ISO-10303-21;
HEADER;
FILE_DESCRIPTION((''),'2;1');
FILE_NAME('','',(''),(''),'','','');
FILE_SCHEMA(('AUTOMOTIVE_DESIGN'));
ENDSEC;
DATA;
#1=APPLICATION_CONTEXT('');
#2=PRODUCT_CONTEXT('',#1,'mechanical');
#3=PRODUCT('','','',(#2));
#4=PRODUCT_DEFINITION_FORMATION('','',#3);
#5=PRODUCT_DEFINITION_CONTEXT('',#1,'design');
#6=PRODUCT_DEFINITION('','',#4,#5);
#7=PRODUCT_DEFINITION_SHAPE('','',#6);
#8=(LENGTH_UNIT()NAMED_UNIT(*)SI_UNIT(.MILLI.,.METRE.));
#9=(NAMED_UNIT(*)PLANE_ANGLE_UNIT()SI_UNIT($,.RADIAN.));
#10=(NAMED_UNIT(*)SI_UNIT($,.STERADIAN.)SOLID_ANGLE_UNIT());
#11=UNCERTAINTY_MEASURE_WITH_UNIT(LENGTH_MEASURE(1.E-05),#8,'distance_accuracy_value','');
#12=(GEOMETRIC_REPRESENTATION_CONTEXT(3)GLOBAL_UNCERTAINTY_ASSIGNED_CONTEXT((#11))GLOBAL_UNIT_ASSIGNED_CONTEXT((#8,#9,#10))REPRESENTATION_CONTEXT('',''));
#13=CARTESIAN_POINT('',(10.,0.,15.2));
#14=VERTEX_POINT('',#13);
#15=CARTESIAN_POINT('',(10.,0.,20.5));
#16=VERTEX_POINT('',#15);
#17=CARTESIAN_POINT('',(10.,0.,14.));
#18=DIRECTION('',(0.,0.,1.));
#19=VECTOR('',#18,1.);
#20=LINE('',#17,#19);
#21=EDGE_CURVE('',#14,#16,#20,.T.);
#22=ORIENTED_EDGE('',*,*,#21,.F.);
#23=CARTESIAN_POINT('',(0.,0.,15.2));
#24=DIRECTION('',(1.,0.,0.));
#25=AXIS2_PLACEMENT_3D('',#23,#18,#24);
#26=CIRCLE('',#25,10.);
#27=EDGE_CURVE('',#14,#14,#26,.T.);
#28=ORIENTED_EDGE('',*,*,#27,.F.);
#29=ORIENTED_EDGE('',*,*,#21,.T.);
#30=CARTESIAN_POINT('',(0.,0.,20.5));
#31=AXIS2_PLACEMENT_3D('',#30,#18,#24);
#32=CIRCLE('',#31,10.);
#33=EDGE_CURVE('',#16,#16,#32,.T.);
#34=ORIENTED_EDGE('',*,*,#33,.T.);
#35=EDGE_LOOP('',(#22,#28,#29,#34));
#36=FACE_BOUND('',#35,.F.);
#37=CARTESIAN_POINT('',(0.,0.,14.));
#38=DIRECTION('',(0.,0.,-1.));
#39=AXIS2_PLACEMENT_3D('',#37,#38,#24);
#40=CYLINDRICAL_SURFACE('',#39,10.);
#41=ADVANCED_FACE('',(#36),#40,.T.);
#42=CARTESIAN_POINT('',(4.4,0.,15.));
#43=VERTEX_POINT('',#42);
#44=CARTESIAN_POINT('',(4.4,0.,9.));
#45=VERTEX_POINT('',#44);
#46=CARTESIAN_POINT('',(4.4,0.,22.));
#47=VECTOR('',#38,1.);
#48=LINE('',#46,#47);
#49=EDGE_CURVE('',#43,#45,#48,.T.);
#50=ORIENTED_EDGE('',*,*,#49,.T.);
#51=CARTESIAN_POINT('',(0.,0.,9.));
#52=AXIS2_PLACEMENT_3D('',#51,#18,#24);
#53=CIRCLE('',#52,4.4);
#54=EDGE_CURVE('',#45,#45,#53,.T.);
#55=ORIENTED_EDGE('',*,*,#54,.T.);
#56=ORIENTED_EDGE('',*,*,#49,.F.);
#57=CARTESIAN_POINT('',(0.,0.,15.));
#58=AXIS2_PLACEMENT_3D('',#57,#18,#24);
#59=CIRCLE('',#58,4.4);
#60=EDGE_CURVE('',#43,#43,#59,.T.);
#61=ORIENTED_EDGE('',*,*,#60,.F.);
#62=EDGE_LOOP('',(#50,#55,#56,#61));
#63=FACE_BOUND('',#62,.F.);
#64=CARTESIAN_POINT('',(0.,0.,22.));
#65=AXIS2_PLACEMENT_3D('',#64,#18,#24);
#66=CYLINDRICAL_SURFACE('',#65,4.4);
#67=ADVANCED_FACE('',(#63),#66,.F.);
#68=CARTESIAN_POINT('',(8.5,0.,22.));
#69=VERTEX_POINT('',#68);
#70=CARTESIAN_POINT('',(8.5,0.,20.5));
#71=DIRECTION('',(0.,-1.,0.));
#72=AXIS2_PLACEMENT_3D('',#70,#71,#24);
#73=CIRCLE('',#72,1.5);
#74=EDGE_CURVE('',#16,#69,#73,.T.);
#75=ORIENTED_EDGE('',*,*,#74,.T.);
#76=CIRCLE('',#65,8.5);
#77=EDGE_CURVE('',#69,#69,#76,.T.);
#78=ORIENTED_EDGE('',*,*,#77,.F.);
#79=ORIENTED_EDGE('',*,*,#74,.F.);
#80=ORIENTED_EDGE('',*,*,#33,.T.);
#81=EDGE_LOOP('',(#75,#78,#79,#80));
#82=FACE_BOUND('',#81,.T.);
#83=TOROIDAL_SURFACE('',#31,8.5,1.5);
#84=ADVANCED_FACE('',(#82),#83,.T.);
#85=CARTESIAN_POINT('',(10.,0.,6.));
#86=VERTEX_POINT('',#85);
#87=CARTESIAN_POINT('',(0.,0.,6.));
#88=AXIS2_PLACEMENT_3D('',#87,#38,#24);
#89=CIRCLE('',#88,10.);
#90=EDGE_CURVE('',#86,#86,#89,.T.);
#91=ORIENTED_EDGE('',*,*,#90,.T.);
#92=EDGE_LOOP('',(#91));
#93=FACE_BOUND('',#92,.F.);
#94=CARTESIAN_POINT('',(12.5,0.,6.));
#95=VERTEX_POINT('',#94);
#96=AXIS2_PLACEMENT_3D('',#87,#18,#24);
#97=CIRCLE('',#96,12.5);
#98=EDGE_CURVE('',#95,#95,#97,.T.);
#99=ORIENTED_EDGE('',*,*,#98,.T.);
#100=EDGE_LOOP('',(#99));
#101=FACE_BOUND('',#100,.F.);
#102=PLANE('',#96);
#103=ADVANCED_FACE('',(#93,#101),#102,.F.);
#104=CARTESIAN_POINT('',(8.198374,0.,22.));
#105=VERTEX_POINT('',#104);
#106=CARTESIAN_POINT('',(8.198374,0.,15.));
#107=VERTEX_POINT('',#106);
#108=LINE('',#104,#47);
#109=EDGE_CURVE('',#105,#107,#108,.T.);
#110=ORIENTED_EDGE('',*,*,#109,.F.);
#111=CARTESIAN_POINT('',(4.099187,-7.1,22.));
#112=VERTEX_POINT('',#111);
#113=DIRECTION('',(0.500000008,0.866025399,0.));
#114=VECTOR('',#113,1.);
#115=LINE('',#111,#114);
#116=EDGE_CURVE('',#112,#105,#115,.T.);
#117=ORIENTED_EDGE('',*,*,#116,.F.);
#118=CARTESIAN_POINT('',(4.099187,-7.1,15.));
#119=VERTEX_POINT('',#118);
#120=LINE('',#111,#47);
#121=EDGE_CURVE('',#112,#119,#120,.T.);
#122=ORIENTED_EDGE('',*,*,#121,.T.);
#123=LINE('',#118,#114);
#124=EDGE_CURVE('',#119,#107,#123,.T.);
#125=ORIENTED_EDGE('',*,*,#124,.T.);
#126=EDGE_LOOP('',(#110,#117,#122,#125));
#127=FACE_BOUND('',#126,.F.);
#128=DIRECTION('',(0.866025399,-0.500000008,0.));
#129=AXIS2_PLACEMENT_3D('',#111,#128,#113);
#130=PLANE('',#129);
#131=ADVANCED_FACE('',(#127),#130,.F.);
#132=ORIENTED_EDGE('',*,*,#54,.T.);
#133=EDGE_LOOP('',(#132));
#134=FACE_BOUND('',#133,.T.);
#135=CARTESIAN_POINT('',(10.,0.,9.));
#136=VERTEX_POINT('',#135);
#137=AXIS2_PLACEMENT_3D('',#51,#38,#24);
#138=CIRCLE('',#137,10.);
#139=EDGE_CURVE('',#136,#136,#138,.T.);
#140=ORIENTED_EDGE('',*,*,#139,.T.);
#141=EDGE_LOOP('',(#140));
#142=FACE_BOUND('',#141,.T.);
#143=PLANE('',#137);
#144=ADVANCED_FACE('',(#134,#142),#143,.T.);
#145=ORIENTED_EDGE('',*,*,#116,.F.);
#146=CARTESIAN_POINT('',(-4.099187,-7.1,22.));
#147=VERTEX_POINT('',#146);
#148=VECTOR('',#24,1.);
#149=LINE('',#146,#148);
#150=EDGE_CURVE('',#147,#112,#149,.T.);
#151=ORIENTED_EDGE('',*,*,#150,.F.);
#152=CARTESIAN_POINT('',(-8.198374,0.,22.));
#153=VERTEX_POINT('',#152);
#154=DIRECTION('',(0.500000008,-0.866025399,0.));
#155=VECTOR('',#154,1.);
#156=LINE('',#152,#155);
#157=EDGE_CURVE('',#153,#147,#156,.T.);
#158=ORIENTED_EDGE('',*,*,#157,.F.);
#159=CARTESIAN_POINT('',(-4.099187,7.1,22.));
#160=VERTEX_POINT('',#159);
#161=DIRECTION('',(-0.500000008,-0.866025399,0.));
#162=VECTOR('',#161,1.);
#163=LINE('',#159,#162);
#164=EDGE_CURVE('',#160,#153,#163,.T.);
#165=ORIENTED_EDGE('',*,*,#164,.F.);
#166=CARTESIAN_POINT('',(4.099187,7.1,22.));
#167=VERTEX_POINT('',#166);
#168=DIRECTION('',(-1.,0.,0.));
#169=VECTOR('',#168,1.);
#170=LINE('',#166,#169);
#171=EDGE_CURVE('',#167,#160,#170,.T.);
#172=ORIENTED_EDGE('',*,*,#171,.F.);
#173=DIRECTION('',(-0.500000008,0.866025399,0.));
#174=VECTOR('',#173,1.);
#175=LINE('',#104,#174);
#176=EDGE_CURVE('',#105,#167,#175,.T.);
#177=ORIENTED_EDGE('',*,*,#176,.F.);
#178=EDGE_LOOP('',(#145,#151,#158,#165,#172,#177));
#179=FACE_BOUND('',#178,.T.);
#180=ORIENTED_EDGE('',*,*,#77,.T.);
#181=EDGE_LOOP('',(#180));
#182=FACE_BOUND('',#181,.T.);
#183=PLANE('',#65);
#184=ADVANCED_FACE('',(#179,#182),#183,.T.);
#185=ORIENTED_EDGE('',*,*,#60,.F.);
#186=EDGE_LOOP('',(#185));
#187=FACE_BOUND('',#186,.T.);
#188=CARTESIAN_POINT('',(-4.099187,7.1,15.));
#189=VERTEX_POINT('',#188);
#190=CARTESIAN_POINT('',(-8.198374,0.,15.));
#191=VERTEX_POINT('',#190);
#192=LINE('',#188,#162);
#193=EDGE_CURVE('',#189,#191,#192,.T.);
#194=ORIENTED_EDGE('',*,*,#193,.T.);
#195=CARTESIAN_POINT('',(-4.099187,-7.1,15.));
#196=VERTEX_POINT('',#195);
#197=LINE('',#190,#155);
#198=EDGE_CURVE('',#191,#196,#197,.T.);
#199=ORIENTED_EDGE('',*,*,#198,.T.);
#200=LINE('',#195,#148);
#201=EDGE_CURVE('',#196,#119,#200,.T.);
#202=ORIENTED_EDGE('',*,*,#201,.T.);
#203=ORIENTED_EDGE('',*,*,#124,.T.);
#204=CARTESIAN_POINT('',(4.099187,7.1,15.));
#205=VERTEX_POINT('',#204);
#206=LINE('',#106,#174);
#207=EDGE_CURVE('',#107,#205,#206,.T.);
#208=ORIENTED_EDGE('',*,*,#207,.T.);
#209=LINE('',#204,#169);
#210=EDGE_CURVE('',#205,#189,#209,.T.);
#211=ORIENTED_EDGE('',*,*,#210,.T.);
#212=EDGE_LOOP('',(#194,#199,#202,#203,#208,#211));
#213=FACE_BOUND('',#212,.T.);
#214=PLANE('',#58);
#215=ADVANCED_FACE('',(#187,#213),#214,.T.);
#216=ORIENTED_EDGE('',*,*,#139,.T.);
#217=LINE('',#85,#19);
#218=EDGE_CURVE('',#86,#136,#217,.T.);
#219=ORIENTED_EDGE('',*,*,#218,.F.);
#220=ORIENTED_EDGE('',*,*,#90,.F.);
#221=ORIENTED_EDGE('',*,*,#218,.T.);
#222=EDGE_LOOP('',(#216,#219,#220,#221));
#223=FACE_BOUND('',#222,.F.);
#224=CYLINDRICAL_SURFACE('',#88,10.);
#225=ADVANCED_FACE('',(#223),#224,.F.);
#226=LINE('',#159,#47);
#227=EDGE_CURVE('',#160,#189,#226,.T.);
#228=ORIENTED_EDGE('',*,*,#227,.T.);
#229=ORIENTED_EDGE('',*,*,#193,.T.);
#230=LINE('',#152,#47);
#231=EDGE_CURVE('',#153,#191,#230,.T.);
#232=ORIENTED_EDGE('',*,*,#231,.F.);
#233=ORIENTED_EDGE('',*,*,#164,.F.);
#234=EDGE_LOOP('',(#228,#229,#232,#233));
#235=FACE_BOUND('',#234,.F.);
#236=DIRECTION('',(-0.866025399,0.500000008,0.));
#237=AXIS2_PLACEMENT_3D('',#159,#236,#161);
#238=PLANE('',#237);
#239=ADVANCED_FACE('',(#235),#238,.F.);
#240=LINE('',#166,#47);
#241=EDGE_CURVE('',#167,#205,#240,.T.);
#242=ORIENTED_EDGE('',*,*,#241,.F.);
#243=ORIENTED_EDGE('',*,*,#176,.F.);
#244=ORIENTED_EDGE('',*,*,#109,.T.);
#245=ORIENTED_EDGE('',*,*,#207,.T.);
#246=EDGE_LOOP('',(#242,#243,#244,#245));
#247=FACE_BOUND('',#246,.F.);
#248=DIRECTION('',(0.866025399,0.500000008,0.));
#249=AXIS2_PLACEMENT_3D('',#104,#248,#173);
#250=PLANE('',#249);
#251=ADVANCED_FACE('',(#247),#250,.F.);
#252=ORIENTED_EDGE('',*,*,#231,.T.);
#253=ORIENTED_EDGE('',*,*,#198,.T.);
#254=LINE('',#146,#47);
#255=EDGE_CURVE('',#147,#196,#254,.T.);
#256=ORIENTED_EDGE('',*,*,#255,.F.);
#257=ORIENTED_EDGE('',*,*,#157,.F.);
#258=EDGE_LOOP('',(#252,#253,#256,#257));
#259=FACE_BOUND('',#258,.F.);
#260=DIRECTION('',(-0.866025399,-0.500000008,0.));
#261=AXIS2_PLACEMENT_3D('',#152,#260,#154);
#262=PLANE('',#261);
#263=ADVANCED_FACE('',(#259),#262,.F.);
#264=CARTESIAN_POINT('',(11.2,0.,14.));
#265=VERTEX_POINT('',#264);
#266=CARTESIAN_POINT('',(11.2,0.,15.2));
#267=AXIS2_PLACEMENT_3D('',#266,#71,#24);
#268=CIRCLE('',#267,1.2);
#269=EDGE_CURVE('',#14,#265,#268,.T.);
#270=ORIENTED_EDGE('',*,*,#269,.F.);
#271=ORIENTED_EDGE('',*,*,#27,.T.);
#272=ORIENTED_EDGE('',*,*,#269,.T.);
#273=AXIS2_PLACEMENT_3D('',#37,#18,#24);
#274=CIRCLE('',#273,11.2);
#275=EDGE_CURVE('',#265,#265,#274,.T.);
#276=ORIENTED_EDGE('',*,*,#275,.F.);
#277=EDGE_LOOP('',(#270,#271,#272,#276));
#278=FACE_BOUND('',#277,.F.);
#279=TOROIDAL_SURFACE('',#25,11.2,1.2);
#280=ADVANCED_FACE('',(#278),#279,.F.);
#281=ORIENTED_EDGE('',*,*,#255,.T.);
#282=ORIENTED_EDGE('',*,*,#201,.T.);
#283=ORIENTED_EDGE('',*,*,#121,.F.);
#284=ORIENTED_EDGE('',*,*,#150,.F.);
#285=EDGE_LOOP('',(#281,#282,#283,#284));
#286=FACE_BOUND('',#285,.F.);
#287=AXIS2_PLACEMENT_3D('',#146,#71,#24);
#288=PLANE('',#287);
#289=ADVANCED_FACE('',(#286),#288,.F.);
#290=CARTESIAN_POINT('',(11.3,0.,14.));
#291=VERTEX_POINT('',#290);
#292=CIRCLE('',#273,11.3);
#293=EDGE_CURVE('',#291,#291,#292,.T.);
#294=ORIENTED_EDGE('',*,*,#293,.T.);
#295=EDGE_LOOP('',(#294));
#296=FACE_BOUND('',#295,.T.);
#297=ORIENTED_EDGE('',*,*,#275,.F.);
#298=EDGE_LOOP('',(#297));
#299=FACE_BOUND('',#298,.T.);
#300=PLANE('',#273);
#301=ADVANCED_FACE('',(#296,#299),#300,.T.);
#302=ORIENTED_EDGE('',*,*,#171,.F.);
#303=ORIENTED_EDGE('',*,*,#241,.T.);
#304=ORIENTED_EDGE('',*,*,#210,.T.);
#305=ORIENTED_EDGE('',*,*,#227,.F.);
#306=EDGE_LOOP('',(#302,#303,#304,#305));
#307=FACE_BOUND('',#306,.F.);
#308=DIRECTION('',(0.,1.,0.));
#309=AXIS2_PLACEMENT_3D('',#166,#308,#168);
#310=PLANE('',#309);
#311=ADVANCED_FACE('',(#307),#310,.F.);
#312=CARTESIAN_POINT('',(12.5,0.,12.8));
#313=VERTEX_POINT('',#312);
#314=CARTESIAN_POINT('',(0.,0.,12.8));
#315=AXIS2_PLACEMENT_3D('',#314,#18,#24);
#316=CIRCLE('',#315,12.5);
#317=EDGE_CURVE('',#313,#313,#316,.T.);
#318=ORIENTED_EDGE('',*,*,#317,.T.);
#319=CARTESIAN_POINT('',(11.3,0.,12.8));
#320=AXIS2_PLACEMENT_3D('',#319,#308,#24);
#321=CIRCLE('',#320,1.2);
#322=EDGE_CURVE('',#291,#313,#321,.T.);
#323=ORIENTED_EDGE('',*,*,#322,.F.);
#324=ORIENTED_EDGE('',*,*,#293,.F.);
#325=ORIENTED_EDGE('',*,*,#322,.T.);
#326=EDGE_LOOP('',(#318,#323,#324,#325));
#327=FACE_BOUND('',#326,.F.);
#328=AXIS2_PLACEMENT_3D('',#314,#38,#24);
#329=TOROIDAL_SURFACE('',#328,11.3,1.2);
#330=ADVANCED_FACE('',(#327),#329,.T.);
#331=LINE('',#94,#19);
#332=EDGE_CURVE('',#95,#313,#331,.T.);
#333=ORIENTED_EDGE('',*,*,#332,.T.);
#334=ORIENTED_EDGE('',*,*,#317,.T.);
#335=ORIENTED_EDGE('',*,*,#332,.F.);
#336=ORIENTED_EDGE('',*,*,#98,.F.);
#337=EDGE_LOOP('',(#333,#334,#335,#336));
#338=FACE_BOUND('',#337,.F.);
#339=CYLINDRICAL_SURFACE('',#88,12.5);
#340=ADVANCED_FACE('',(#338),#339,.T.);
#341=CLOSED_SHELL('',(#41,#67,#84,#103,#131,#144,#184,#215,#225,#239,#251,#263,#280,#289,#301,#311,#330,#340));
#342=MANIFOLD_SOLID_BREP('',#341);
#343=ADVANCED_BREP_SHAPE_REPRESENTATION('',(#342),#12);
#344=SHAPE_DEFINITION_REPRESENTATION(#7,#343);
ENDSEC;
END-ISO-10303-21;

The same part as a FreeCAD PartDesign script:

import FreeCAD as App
import Part
import Sketcher

V = App.Vector
Q = App.Units.Quantity


def edges_at(feature, points):
    """Names of the edges that pass closest to the given points."""
    edges = feature.Shape.Edges
    near = lambda p: min(range(len(edges)), key=lambda i: edges[i].distToShape(Part.Vertex(*p))[0])
    return sorted({f"Edge{near(p) + 1}" for p in points})

doc = App.newDocument("Part")
body = doc.addObject("PartDesign::Body", "Body")

sketch1 = body.newObject("Sketcher::SketchObject", "Sketch")
sketch1.AttachmentSupport = (doc.getObject("XY_Plane"), [""])
sketch1.MapMode = "FlatFace"
sketch1.AttachmentOffset = App.Placement(V(0, 0, 6), App.Rotation())
sketch1.addGeometry(Part.Circle(V(0, 0, 0), V(0, 0, 1), 12), False)
sketch1.addConstraint([
    Sketcher.Constraint("Coincident", 0, 3, -1, 1),
    Sketcher.Constraint("Diameter", 0, 25.0),
])
pad1 = body.newObject("PartDesign::Pad", "Pad")
pad1.Profile = sketch1
pad1.Length = 8

sketch2 = body.newObject("Sketcher::SketchObject", "Sketch001")
sketch2.AttachmentSupport = (doc.getObject("XY_Plane"), [""])
sketch2.MapMode = "FlatFace"
sketch2.AttachmentOffset = App.Placement(V(0, 0, 6), App.Rotation())
sketch2.addGeometry(Part.Circle(V(0, 0, 0), V(0, 0, 1), 10), False)
sketch2.addConstraint([
    Sketcher.Constraint("Coincident", 0, 3, -1, 1),
    Sketcher.Constraint("Diameter", 0, 20.0),
])
pocket1 = body.newObject("PartDesign::Pocket", "Pocket")
pocket1.Profile = sketch2
pocket1.Length = 3
pocket1.Reversed = True

sketch3 = body.newObject("Sketcher::SketchObject", "Sketch002")
sketch3.AttachmentSupport = (doc.getObject("XY_Plane"), [""])
sketch3.MapMode = "FlatFace"
sketch3.AttachmentOffset = App.Placement(V(0, 0, 14), App.Rotation())
sketch3.addGeometry(Part.Circle(V(0, 0, 0), V(0, 0, 1), 10), False)
sketch3.addConstraint([
    Sketcher.Constraint("Coincident", 0, 3, -1, 1),
    Sketcher.Constraint("Diameter", 0, 20.0),
])
pad2 = body.newObject("PartDesign::Pad", "Pad001")
pad2.Profile = sketch3
pad2.Length = 8

sketch4 = body.newObject("Sketcher::SketchObject", "Sketch003")
sketch4.AttachmentSupport = (doc.getObject("XY_Plane"), [""])
sketch4.MapMode = "FlatFace"
sketch4.AttachmentOffset = App.Placement(V(0, 0, 22), App.Rotation())
sketch4.addGeometry(Part.Circle(V(0, 0, 0), V(0, 0, 1), 4.4), False)
sketch4.addConstraint([
    Sketcher.Constraint("Coincident", 0, 3, -1, 1),
    Sketcher.Constraint("Diameter", 0, 8.8),
])
pocket2 = body.newObject("PartDesign::Pocket", "Pocket001")
pocket2.Profile = sketch4
pocket2.Type = "ThroughAll"

sketch5 = body.newObject("Sketcher::SketchObject", "Sketch004")
sketch5.AttachmentSupport = (doc.getObject("XY_Plane"), [""])
sketch5.MapMode = "FlatFace"
sketch5.AttachmentOffset = App.Placement(V(0, 0, 22), App.Rotation())
sketch5.addGeometry([
    Part.LineSegment(V(4, -7, 0), V(8, 0, 0)),
    Part.LineSegment(V(8, 0, 0), V(4, 7, 0)),
    Part.LineSegment(V(4, 7, 0), V(-4, 7, 0)),
    Part.LineSegment(V(-4, 7, 0), V(-8, 0, 0)),
    Part.LineSegment(V(-8, 0, 0), V(-4, -7, 0)),
    Part.LineSegment(V(-4, -7, 0), V(4, -7, 0)),
], False)
sketch5.addConstraint([
    Sketcher.Constraint("Coincident", 0, 2, 1, 1),
    Sketcher.Constraint("Coincident", 1, 2, 2, 1),
    Sketcher.Constraint("Coincident", 2, 2, 3, 1),
    Sketcher.Constraint("Coincident", 3, 2, 4, 1),
    Sketcher.Constraint("Coincident", 4, 2, 5, 1),
    Sketcher.Constraint("Coincident", 5, 2, 0, 1),
    Sketcher.Constraint("Horizontal", 2),
    Sketcher.Constraint("Horizontal", 5),
    Sketcher.Constraint("Symmetric", 0, 2, 3, 2, -1, 1),
    Sketcher.Constraint("Symmetric", 1, 2, 4, 2, -1, 1),
    Sketcher.Constraint("PointOnObject", 0, 2, -1),
    Sketcher.Constraint("Parallel", 0, 3),
    Sketcher.Constraint("Vertical", 2, 2, 4, 2),
    Sketcher.Constraint("Angle", 0, Q("59.999999 deg")),
    Sketcher.Constraint("DistanceY", -1, 1, 1, 2, 7.1),
    Sketcher.Constraint("DistanceX", 2, 2, 2, 1, 8.198374),
])
pocket3 = body.newObject("PartDesign::Pocket", "Pocket002")
pocket3.Profile = sketch5
pocket3.Length = 7
doc.recompute()

fillet = body.newObject("PartDesign::Fillet", "Fillet")
fillet.Base = (pocket3, edges_at(pocket3, [(-10, 0, 22)]))
fillet.Radius = 1.5
doc.recompute()

fillet2 = body.newObject("PartDesign::Fillet", "Fillet001")
fillet2.Base = (fillet, edges_at(fillet, [(-12.5, 0, 14), (-10, 0, 14)]))
fillet2.Radius = 1.2

doc.recompute()
